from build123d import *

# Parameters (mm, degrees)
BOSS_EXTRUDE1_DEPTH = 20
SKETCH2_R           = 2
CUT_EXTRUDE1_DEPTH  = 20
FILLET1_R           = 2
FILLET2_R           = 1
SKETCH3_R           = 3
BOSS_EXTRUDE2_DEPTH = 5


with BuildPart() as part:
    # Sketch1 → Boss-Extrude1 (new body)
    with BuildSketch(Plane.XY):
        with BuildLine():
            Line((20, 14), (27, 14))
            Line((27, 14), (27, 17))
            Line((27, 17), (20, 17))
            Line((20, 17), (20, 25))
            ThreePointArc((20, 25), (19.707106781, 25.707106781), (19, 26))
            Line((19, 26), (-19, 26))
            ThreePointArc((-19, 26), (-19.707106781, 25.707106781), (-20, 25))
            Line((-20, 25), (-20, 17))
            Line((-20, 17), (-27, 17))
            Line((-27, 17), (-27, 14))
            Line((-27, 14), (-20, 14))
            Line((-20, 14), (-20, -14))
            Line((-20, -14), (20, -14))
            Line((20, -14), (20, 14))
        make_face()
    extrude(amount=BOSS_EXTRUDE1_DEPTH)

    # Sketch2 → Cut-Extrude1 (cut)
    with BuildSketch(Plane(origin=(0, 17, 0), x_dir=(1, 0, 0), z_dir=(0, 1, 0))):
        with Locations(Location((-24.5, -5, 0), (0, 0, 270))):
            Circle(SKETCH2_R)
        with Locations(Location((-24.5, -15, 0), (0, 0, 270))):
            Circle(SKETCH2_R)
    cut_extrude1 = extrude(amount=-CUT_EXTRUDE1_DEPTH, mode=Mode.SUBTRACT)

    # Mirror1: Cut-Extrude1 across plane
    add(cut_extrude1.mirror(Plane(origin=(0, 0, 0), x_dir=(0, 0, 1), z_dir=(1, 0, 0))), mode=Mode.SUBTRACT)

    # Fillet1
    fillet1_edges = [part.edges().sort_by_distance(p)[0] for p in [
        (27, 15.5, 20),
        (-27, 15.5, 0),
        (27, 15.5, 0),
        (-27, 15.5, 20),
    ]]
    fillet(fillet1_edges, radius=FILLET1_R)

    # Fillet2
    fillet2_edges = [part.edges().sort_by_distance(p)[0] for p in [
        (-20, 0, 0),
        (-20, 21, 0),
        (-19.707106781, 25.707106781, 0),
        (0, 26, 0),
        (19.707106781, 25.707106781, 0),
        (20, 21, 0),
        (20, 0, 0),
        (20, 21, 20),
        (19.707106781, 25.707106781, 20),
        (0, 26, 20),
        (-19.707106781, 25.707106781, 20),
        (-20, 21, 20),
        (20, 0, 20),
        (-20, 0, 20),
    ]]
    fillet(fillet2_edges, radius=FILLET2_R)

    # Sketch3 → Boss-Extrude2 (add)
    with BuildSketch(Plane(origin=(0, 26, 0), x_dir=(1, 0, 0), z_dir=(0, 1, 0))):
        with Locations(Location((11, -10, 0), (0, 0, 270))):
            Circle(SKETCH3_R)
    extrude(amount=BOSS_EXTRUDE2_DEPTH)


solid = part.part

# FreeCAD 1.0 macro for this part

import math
import FreeCAD as App
import Part
import Sketcher

V = App.Vector
Q = App.Units.Quantity


def edges_at(feature, points):
    """Names of the edges that pass closest to the given points."""
    edges = feature.Shape.Edges
    near = lambda p: min(range(len(edges)), key=lambda i: edges[i].distToShape(Part.Vertex(*p))[0])
    return sorted({f"Edge{near(p) + 1}" for p in points})

doc = App.newDocument("Part")
params = doc.addObject("Spreadsheet::Sheet", "Params")
for row, (alias, value) in enumerate([
    ("sketch1_radius", "1 mm"),
    ("sketch1_width", "7 mm"),
    ("sketch1_width2", "38 mm"),
    ("sketch1_height", "3 mm"),
    ("sketch1_height2", "8 mm"),
    ("pad1_length", "20 mm"),
    ("sketch2_diameter", "4 mm"),
    ("pocket1_length", "20 mm"),
    ("fillet_radius", "2 mm"),
    ("fillet2_radius", "1 mm"),
    ("sketch3_diameter", "6 mm"),
    ("pad2_length", "5 mm"),
], start=1):
    params.set(f"A{row}", alias)
    params.set(f"B{row}", "=" + value)
    params.setAlias(f"B{row}", alias)

body = doc.addObject("PartDesign::Body", "Body")

# Sketch on XY plane
sketch1 = doc.addObject("Sketcher::SketchObject", "Sketch")
body.addObject(sketch1)
sketch1.AttachmentSupport = (doc.XY_Plane, [""])
sketch1.MapMode = "FlatFace"
sketch1.addGeometry([
    Part.LineSegment(V(20, 14, 0), V(27, 14, 0)),  # 0
    Part.LineSegment(V(27, 14, 0), V(27, 17, 0)),  # 1
    Part.LineSegment(V(27, 17, 0), V(20, 17, 0)),  # 2
    Part.LineSegment(V(20, 17, 0), V(20, 25, 0)),  # 3
    Part.ArcOfCircle(Part.Circle(V(19, 25, 0), V(0, 0, 1), 1), math.radians(0), math.radians(90)),  # 4
    Part.LineSegment(V(19, 26, 0), V(-19, 26, 0)),  # 5
    Part.ArcOfCircle(Part.Circle(V(-19, 25, 0), V(0, 0, 1), 1), math.radians(90), math.radians(180)),  # 6
    Part.LineSegment(V(-20, 25, 0), V(-20, 17, 0)),  # 7
    Part.LineSegment(V(-20, 17, 0), V(-27, 17, 0)),  # 8
    Part.LineSegment(V(-27, 17, 0), V(-27, 14, 0)),  # 9
    Part.LineSegment(V(-27, 14, 0), V(-20, 14, 0)),  # 10
    Part.LineSegment(V(-20, 14, 0), V(-20, -14, 0)),  # 11
    Part.LineSegment(V(-20, -14, 0), V(20, -14, 0)),  # 12
    Part.LineSegment(V(20, -14, 0), V(20, 14, 0)),  # 13
], False)
sketch1.addConstraint([
    Sketcher.Constraint("Coincident", 0, 2, 1, 1),
    Sketcher.Constraint("Coincident", 1, 2, 2, 1),
    Sketcher.Constraint("Coincident", 2, 2, 3, 1),
    Sketcher.Constraint("Tangent", 3, 2, 4, 1),
    Sketcher.Constraint("Tangent", 4, 2, 5, 1),
    Sketcher.Constraint("Tangent", 5, 2, 6, 1),
    Sketcher.Constraint("Tangent", 6, 2, 7, 1),
    Sketcher.Constraint("Coincident", 7, 2, 8, 1),
    Sketcher.Constraint("Coincident", 8, 2, 9, 1),
    Sketcher.Constraint("Coincident", 9, 2, 10, 1),
    Sketcher.Constraint("Coincident", 10, 2, 11, 1),
    Sketcher.Constraint("Coincident", 11, 2, 12, 1),
    Sketcher.Constraint("Coincident", 12, 2, 13, 1),
    Sketcher.Constraint("Coincident", 13, 2, 0, 1),
    Sketcher.Constraint("Horizontal", 0),
    Sketcher.Constraint("Vertical", 1),
    Sketcher.Constraint("Horizontal", 2),
    Sketcher.Constraint("Vertical", 3),
    Sketcher.Constraint("Horizontal", 5),
    Sketcher.Constraint("Vertical", 7),
    Sketcher.Constraint("Horizontal", 8),
    Sketcher.Constraint("Vertical", 9),
    Sketcher.Constraint("Horizontal", 10),
    Sketcher.Constraint("Vertical", 11),
    Sketcher.Constraint("Horizontal", 12),
    Sketcher.Constraint("Vertical", 13),
    Sketcher.Constraint("Equal", 4, 6),
    Sketcher.Constraint("Symmetric", 10, 2, 12, 2, -1, 1),
    Sketcher.Constraint("Symmetric", 2, 2, 7, 2, -2),
    Sketcher.Constraint("Symmetric", 0, 2, 9, 2, -2),
    Sketcher.Constraint("Vertical", 7, 2, 10, 2),
    Sketcher.Constraint("Radius", 4, Q("1 mm")),
    Sketcher.Constraint("DistanceX", 0, 1, 0, 2, Q("7 mm")),
    Sketcher.Constraint("DistanceX", 5, 2, 5, 1, Q("38 mm")),
    Sketcher.Constraint("DistanceY", 1, 1, 1, 2, Q("3 mm")),
    Sketcher.Constraint("DistanceY", 3, 1, 3, 2, Q("8 mm")),
    Sketcher.Constraint("DistanceY", 11, 2, 11, 1, Q("28 mm")),
])
sketch1.setExpression("Constraints[31]", "Params.sketch1_radius")
sketch1.setExpression("Constraints[32]", "Params.sketch1_width")
sketch1.setExpression("Constraints[33]", "Params.sketch1_width2")
sketch1.setExpression("Constraints[34]", "Params.sketch1_height")
sketch1.setExpression("Constraints[35]", "Params.sketch1_height2")
pad1 = doc.addObject("PartDesign::Pad", "Pad")
body.addObject(pad1)
pad1.Profile = sketch1
pad1.setExpression("Length", "Params.pad1_length")

# Sketch on XZ plane
sketch2 = doc.addObject("Sketcher::SketchObject", "Sketch001")
body.addObject(sketch2)
sketch2.AttachmentSupport = (doc.XZ_Plane, [""])
sketch2.MapMode = "FlatFace"
sketch2.AttachmentOffset = App.Placement(V(0, 0, -17), App.Rotation())
sketch2.addGeometry([
    Part.Circle(V(-24.5, 5, 0), V(0, 0, 1), 2),
    Part.Circle(V(-24.5, 15, 0), V(0, 0, 1), 2),
], False)
sketch2.addConstraint([
    Sketcher.Constraint("Equal", 0, 1),
    Sketcher.Constraint("Vertical", 0, 3, 1, 3),
    Sketcher.Constraint("Diameter", 0, Q("4 mm")),
    Sketcher.Constraint("DistanceY", -1, 1, 0, 3, Q("5 mm")),
    Sketcher.Constraint("DistanceY", -1, 1, 1, 3, Q("15 mm")),
    Sketcher.Constraint("DistanceX", 0, 3, -1, 1, Q("24.5 mm")),
])
sketch2.setExpression("Constraints[2]", "Params.sketch2_diameter")
pocket1 = doc.addObject("PartDesign::Pocket", "Pocket")
body.addObject(pocket1)
pocket1.Profile = sketch2
pocket1.setExpression("Length", "Params.pocket1_length")
pocket1.Reversed = True
doc.recompute()

mirrored = doc.addObject("PartDesign::Mirrored", "Mirrored")
body.addObject(mirrored)
mirrored.Originals = [pocket1]
mirrored.MirrorPlane = (doc.YZ_Plane, [""])
body.Tip = mirrored
doc.recompute()

fillet = doc.addObject("PartDesign::Fillet", "Fillet")
body.addObject(fillet)
fillet.Base = (mirrored, edges_at(mirrored, [
    (27, 15.5, 20),
    (-27, 15.5, 0),
    (27, 15.5, 0),
    (-27, 15.5, 20),
]))
fillet.setExpression("Radius", "Params.fillet_radius")
doc.recompute()

fillet2 = doc.addObject("PartDesign::Fillet", "Fillet001")
body.addObject(fillet2)
fillet2.Base = (fillet, edges_at(fillet, [
    (-20, 0, 0),
    (-20, 21, 0),
    (-19.707, 25.707, 0),
    (0, 26, 0),
    (19.707, 25.707, 0),
    (20, 21, 0),
    (20, 0, 0),
    (20, 21, 20),
    (19.707, 25.707, 20),
    (0, 26, 20),
    (-19.707, 25.707, 20),
    (-20, 21, 20),
    (20, 0, 20),
    (-20, 0, 20),
]))
fillet2.setExpression("Radius", "Params.fillet2_radius")

# Sketch on XZ plane
sketch3 = doc.addObject("Sketcher::SketchObject", "Sketch002")
body.addObject(sketch3)
sketch3.AttachmentSupport = (doc.XZ_Plane, [""])
sketch3.MapMode = "FlatFace"
sketch3.AttachmentOffset = App.Placement(V(0, 0, -26), App.Rotation())
sketch3.addGeometry(Part.Circle(V(11, 10, 0), V(0, 0, 1), 3), False)
sketch3.addConstraint([
    Sketcher.Constraint("Diameter", 0, Q("6 mm")),
    Sketcher.Constraint("DistanceX", -1, 1, 0, 3, Q("11 mm")),
    Sketcher.Constraint("DistanceY", -1, 1, 0, 3, Q("10 mm")),
])
sketch3.setExpression("Constraints[0]", "Params.sketch3_diameter")
pad2 = doc.addObject("PartDesign::Pad", "Pad001")
body.addObject(pad2)
pad2.Profile = sketch3
pad2.setExpression("Length", "Params.pad2_length")
pad2.Reversed = True

doc.recompute()
